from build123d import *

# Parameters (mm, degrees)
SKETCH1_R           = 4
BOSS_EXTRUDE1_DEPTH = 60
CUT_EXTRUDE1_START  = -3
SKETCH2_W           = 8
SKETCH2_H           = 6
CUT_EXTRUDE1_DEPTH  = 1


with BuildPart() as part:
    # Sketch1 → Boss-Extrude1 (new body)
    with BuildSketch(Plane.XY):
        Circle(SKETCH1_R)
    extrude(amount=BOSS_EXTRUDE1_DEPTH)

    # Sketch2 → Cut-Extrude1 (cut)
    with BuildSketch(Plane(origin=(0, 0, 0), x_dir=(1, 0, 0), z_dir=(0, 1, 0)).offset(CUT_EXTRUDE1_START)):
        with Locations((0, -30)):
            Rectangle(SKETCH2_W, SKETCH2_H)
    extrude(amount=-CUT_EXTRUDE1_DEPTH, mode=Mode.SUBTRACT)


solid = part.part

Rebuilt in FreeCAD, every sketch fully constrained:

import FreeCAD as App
import Part
import Sketcher

V = App.Vector
Q = App.Units.Quantity


def add_polygon(sketch, points):
    """Adds a closed chain of lines whose ends are joined by coincident constraints."""
    first, n = sketch.GeometryCount, len(points)
    for a, b in zip(points, points[1:] + points[:1]):
        sketch.addGeometry(Part.LineSegment(App.Vector(*a, 0), App.Vector(*b, 0)), False)
    for i in range(n):
        sketch.addConstraint(Sketcher.Constraint("Coincident", first + i, 2, first + (i + 1) % n, 1))

doc = App.newDocument("Part")
body = doc.addObject("PartDesign::Body", "Body")

# Sketch on XY plane
sketch1 = body.newObject("Sketcher::SketchObject", "Sketch")
sketch1.AttachmentSupport = (doc.getObject("XY_Plane"), [""])
sketch1.MapMode = "FlatFace"
sketch1.addGeometry(Part.Circle(V(0, 0, 0), V(0, 0, 1), 4), False)
sketch1.addConstraint(Sketcher.Constraint("Coincident", 0, 3, -1, 1))
sketch1.addConstraint(Sketcher.Constraint("Diameter", 0, Q("8 mm")))
pad1 = body.newObject("PartDesign::Pad", "Pad")
pad1.Profile = sketch1
pad1.Length = 60

# Sketch on XZ plane
sketch2 = body.newObject("Sketcher::SketchObject", "Sketch001")
sketch2.AttachmentSupport = (doc.getObject("XZ_Plane"), [""])
sketch2.MapMode = "FlatFace"
sketch2.AttachmentOffset = App.Placement(V(0, 0, 3), App.Rotation())
add_polygon(sketch2, [(-4, 27), (-4, 33), (4, 33), (4, 27)])  # lines 0-3
sketch2.addConstraint(Sketcher.Constraint("Vertical", 0))
sketch2.addConstraint(Sketcher.Constraint("Horizontal", 1))
sketch2.addConstraint(Sketcher.Constraint("Vertical", 2))
sketch2.addConstraint(Sketcher.Constraint("Horizontal", 3))
sketch2.addConstraint(Sketcher.Constraint("DistanceX", 1, 1, 1, 2, Q("8 mm")))
sketch2.addConstraint(Sketcher.Constraint("DistanceY", 0, 1, 0, 2, Q("6 mm")))
sketch2.addConstraint(Sketcher.Constraint("DistanceX", 0, 2, -1, 1, Q("4 mm")))
sketch2.addConstraint(Sketcher.Constraint("DistanceY", -1, 1, 0, 2, Q("33 mm")))
pocket1 = body.newObject("PartDesign::Pocket", "Pocket")
pocket1.Profile = sketch2
pocket1.Length = 1
pocket1.Reversed = True

doc.recompute()
